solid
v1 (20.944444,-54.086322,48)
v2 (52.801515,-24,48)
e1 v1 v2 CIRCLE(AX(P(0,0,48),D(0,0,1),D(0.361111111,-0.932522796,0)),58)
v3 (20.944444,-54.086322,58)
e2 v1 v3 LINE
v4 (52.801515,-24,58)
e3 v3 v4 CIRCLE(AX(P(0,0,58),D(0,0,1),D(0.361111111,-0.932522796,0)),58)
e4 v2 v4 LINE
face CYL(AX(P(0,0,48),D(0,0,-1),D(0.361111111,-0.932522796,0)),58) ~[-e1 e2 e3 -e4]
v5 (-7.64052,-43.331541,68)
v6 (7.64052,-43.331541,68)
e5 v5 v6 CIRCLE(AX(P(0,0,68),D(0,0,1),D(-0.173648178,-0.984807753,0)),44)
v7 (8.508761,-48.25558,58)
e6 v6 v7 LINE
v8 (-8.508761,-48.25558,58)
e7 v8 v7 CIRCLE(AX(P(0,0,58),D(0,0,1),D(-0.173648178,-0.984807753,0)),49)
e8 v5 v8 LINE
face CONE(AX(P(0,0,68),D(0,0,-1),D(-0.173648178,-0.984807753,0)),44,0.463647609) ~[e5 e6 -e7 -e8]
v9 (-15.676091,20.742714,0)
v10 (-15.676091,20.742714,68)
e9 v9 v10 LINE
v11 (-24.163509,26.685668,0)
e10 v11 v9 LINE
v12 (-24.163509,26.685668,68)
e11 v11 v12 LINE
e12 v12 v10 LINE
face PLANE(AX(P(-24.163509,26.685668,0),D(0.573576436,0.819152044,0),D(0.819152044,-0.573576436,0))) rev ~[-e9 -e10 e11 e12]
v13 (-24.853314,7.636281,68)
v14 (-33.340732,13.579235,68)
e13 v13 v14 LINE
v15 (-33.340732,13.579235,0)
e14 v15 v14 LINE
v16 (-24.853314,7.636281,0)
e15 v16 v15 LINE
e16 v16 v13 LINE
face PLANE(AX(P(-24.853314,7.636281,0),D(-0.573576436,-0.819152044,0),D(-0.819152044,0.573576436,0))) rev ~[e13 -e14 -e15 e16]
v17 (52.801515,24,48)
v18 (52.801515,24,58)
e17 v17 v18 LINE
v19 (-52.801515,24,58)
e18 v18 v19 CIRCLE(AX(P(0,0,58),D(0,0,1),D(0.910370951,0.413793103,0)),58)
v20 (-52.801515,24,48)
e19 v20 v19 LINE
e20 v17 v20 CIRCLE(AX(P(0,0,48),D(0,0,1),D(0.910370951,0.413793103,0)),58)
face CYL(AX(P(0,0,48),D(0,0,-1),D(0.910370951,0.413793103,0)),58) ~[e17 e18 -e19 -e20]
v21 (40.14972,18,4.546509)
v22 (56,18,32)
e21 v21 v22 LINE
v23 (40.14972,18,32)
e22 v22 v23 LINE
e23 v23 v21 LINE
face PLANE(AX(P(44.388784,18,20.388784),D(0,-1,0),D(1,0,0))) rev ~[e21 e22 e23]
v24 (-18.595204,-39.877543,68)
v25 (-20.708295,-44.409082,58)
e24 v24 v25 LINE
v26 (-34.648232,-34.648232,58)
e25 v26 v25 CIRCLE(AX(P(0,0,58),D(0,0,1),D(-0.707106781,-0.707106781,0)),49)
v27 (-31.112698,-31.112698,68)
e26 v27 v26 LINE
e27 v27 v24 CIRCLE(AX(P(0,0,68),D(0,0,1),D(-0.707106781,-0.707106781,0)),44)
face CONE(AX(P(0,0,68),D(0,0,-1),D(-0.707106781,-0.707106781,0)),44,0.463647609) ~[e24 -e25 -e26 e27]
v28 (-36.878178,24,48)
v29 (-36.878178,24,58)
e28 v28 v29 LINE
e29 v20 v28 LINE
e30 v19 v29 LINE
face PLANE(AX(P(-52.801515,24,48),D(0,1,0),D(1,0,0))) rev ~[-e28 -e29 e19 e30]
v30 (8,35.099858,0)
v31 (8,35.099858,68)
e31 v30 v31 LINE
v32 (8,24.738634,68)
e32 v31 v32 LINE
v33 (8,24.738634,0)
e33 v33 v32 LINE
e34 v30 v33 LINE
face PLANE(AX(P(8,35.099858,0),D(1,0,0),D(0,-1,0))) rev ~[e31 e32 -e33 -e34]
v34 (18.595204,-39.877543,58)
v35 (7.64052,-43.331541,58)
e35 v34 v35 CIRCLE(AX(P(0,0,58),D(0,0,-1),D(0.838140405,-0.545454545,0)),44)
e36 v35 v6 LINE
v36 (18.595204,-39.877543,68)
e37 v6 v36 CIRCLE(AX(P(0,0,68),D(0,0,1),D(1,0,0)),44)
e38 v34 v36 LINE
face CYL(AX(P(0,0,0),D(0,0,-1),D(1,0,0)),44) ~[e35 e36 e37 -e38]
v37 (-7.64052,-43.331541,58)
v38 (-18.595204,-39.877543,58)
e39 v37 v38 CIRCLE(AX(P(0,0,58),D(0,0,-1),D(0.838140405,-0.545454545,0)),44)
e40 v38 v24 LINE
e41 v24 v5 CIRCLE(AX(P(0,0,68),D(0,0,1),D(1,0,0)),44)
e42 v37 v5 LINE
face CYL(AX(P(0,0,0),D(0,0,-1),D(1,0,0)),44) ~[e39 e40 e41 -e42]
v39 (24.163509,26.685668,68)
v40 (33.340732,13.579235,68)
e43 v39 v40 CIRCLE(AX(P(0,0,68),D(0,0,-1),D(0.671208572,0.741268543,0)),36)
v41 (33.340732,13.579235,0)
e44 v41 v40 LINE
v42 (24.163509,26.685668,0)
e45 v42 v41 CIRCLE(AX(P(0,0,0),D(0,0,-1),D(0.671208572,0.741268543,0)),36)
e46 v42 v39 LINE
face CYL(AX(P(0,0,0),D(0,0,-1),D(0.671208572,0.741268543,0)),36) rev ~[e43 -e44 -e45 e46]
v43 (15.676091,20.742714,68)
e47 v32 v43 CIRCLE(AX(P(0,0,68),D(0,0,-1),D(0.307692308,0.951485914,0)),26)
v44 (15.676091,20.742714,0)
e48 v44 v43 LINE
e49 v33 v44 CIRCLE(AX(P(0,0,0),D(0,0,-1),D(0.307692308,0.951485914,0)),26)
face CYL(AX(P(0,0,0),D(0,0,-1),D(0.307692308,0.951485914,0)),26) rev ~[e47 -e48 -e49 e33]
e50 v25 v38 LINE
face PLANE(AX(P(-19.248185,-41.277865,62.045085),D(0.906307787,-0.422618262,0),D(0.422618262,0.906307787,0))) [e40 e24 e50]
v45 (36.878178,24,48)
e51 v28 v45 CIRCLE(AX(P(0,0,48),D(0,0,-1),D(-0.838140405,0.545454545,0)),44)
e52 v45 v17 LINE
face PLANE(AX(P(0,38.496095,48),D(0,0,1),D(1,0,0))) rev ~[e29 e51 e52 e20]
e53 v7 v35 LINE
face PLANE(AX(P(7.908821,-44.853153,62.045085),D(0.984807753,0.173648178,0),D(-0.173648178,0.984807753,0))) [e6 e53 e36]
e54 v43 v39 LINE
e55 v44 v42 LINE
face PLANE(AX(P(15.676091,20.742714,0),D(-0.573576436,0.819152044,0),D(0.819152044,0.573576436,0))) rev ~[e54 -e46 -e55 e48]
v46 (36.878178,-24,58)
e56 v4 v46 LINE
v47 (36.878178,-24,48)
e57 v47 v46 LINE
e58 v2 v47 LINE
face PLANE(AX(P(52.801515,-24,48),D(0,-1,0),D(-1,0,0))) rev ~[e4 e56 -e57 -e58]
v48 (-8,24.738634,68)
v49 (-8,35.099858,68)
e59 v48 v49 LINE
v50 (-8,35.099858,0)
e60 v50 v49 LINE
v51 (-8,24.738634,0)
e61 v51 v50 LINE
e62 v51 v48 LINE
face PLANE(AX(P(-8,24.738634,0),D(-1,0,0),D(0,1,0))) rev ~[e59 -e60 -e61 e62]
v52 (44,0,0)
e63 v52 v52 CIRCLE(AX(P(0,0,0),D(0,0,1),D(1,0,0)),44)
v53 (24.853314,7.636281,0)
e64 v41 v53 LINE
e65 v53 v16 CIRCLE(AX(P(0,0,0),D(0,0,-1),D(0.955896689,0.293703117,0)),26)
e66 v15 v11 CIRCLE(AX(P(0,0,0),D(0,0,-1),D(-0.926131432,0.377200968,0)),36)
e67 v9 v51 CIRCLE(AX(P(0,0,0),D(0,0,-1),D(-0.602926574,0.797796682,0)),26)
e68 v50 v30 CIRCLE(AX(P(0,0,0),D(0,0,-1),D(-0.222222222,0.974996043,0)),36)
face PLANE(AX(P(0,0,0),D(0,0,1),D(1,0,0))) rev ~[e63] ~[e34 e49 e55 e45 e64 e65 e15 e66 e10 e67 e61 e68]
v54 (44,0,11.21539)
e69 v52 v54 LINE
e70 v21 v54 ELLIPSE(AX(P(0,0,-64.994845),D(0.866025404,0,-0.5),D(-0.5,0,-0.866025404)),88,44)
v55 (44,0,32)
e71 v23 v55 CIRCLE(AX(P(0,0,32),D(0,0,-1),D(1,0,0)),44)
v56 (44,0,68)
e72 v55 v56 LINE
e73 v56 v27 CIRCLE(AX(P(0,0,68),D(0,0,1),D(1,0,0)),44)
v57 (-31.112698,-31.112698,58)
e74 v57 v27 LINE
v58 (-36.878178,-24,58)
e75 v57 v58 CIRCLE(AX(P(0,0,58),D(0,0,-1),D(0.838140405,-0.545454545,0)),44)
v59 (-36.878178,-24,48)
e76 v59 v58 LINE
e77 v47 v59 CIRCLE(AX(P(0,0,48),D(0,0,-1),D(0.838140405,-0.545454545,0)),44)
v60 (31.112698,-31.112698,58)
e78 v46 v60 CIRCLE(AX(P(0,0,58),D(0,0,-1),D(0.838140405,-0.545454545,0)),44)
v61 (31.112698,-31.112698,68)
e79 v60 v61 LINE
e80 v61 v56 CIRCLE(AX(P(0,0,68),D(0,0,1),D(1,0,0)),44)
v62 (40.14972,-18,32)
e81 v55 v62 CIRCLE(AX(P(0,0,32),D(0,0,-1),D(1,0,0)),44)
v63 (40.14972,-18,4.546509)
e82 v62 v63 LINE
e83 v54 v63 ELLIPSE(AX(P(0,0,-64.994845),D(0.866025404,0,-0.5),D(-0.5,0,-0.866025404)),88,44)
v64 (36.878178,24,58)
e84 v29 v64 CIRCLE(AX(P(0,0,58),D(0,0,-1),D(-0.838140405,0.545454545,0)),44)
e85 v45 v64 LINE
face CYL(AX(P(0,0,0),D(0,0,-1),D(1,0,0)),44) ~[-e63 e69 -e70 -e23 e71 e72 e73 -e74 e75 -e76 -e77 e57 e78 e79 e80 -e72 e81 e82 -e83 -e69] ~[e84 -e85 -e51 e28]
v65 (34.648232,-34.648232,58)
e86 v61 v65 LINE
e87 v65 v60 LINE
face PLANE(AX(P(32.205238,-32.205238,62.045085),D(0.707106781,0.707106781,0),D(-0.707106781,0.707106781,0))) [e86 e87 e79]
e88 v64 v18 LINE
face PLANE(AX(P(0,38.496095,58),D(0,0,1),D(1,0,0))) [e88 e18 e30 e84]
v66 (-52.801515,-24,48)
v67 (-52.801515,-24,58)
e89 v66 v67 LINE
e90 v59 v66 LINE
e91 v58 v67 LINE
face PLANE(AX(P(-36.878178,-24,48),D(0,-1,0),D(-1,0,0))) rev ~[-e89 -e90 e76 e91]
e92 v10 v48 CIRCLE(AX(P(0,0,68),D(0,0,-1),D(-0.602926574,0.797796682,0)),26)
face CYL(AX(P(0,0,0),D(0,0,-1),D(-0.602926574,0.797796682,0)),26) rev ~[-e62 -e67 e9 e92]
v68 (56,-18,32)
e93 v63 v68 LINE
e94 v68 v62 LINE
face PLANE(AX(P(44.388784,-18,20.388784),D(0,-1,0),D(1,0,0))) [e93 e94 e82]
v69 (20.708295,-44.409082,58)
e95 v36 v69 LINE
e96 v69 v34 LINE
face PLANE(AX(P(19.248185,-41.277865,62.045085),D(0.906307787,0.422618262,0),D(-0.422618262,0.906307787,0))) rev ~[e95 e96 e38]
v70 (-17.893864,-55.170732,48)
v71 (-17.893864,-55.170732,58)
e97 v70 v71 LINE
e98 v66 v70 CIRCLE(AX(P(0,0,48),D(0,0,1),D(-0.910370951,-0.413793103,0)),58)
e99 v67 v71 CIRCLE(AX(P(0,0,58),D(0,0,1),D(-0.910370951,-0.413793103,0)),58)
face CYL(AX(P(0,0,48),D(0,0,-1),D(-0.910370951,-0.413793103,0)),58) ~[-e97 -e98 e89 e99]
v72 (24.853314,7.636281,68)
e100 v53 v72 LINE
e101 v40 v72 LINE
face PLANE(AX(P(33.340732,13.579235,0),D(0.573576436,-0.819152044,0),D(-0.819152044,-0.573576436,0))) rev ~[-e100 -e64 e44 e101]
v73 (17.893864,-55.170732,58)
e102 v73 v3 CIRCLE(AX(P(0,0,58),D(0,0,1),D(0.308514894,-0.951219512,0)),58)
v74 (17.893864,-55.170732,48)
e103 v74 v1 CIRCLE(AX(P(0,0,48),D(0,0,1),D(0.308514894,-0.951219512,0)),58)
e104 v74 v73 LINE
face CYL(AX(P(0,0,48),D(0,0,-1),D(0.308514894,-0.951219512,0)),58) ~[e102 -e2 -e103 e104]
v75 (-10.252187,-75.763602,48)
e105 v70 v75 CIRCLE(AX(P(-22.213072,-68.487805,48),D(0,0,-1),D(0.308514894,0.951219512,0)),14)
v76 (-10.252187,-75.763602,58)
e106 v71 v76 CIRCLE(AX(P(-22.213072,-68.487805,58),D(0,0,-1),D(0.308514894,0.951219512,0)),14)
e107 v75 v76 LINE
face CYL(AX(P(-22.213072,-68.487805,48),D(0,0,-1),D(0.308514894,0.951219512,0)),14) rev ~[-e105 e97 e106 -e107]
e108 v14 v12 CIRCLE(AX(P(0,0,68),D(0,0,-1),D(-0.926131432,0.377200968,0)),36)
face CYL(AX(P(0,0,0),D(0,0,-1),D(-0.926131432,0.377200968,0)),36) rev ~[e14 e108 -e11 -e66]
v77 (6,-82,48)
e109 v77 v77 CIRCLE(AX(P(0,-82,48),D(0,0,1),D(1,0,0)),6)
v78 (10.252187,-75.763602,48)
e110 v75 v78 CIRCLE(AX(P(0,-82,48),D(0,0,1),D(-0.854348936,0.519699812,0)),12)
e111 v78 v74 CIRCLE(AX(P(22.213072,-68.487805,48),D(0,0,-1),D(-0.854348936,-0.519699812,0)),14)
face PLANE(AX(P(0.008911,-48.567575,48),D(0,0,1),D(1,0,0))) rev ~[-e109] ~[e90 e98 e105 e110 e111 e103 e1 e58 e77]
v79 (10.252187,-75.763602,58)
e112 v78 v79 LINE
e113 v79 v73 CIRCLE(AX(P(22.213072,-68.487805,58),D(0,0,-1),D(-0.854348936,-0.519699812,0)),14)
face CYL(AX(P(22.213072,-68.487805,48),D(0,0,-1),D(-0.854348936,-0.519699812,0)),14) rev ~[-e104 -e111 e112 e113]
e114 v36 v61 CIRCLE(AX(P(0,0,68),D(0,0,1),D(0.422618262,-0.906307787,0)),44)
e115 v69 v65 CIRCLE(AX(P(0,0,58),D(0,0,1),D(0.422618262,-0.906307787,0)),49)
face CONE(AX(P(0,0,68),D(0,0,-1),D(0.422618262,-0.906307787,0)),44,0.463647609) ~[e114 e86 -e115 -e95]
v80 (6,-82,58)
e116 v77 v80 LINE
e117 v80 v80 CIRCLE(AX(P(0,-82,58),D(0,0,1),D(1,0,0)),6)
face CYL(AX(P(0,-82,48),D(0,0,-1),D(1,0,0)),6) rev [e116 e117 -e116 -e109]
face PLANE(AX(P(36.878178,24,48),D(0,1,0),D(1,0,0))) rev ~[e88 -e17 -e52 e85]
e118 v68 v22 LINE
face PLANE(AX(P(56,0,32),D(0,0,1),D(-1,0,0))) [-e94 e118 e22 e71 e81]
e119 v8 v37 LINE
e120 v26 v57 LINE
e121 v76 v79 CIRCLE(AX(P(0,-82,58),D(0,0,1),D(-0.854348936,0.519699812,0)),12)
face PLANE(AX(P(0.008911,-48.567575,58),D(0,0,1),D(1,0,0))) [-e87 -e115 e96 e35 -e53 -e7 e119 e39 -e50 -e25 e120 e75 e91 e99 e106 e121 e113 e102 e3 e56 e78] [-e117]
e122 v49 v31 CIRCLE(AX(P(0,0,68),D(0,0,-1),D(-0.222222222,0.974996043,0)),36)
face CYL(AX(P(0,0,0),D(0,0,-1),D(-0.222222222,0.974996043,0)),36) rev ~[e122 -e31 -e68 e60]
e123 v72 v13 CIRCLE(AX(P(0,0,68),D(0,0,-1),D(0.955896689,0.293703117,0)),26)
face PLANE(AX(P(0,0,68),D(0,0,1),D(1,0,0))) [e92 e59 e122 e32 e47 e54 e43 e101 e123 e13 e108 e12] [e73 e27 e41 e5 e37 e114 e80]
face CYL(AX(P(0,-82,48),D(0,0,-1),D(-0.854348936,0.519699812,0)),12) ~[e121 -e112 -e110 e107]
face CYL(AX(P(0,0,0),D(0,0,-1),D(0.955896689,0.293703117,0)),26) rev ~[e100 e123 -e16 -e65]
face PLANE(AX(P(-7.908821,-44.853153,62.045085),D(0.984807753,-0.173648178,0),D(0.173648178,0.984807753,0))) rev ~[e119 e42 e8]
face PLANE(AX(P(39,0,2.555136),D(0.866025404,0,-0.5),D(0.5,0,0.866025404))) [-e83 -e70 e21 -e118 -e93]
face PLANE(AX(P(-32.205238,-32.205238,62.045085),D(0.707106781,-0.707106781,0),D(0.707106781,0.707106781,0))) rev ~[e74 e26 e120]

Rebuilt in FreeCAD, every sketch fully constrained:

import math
import FreeCAD as App
import Part
import Sketcher
Q = App.Units.Quantity


def add_polygon(sketch, points):
    """Adds a closed chain of lines whose ends are joined by coincident constraints."""
    first, n = sketch.GeometryCount, len(points)
    for a, b in zip(points, points[1:] + points[:1]):
        sketch.addGeometry(Part.LineSegment(App.Vector(*a, 0), App.Vector(*b, 0)), False)
    for i in range(n):
        sketch.addConstraint(Sketcher.Constraint("Coincident", first + i, 2, first + (i + 1) % n, 1))

doc = App.newDocument("Part")
body = doc.addObject("PartDesign::Body", "Body")

# Sketch on XY plane
sketch1 = body.newObject("Sketcher::SketchObject", "Sketch")
sketch1.AttachmentSupport = (doc.getObject("XY_Plane"), [""])
sketch1.MapMode = "FlatFace"
sketch1.addGeometry([
    Part.Circle(App.Vector(0, 0, 0), App.Vector(0, 0, 1), 44),  # 0
    Part.LineSegment(App.Vector(-25, 8, 0), App.Vector(-33, 14, 0)),  # 1
    Part.ArcOfCircle(Part.Circle(App.Vector(0, 0, 0), App.Vector(0, 0, 1), 36), math.radians(132), math.radians(158)),  # 2
    Part.LineSegment(App.Vector(-24, 27, 0), App.Vector(-16, 21, 0)),  # 3
    Part.ArcOfCircle(Part.Circle(App.Vector(0, 0, 0), App.Vector(0, 0, 1), 26), math.radians(107.92), math.radians(127.08)),  # 4
    Part.LineSegment(App.Vector(-8, 25, 0), App.Vector(-8, 35, 0)),  # 5
    Part.ArcOfCircle(Part.Circle(App.Vector(0, 0, 0), App.Vector(0, 0, 1), 36), math.radians(77), math.radians(103)),  # 6
    Part.LineSegment(App.Vector(8, 35, 0), App.Vector(8, 25, 0)),  # 7
    Part.ArcOfCircle(Part.Circle(App.Vector(0, 0, 0), App.Vector(0, 0, 1), 26), math.radians(52.92), math.radians(72.08)),  # 8
    Part.LineSegment(App.Vector(16, 21, 0), App.Vector(24, 27, 0)),  # 9
    Part.ArcOfCircle(Part.Circle(App.Vector(0, 0, 0), App.Vector(0, 0, 1), 36), math.radians(22), math.radians(48)),  # 10
    Part.LineSegment(App.Vector(33, 14, 0), App.Vector(25, 8, 0)),  # 11
    Part.ArcOfCircle(Part.Circle(App.Vector(0, 0, 0), App.Vector(0, 0, 1), 26), math.radians(163), math.radians(377)),  # 12
], False)
sketch1.addConstraint([
    Sketcher.Constraint("Coincident", 1, 2, 2, 2),
    Sketcher.Constraint("Coincident", 2, 1, 3, 1),
    Sketcher.Constraint("Coincident", 3, 2, 4, 2),
    Sketcher.Constraint("Coincident", 4, 1, 5, 1),
    Sketcher.Constraint("Coincident", 5, 2, 6, 2),
    Sketcher.Constraint("Coincident", 6, 1, 7, 1),
    Sketcher.Constraint("Coincident", 7, 2, 8, 2),
    Sketcher.Constraint("Coincident", 8, 1, 9, 1),
    Sketcher.Constraint("Coincident", 9, 2, 10, 2),
    Sketcher.Constraint("Coincident", 10, 1, 11, 1),
    Sketcher.Constraint("Coincident", 11, 2, 12, 2),
    Sketcher.Constraint("Coincident", 12, 1, 1, 1),
    Sketcher.Constraint("Vertical", 5),
    Sketcher.Constraint("Vertical", 7),
    Sketcher.Constraint("Coincident", 0, 3, -1, 1),
    Sketcher.Constraint("Coincident", 2, 3, -1, 1),
    Sketcher.Constraint("Coincident", 4, 3, -1, 1),
    Sketcher.Constraint("Coincident", 6, 3, -1, 1),
    Sketcher.Constraint("Coincident", 8, 3, -1, 1),
    Sketcher.Constraint("Coincident", 10, 3, -1, 1),
    Sketcher.Constraint("Coincident", 12, 3, -1, 1),
    Sketcher.Constraint("Equal", 2, 6),
    Sketcher.Constraint("Equal", 4, 8),
    Sketcher.Constraint("Equal", 6, 10),
    Sketcher.Constraint("Equal", 8, 12),
    Sketcher.Constraint("Parallel", 1, 3),
    Sketcher.Constraint("Parallel", 9, 11),
    Sketcher.Constraint("Horizontal", 5, 2, 6, 1),
    Sketcher.Constraint("Horizontal", 3, 2, 8, 1),
    Sketcher.Constraint("Horizontal", 2, 1, 9, 2),
    Sketcher.Constraint("Horizontal", 1, 2, 10, 1),
    Sketcher.Constraint("Equal", 1, 3),
    Sketcher.Constraint("Diameter", 0, 88.0),
    Sketcher.Constraint("Radius", 2, 36.0),
    Sketcher.Constraint("Radius", 4, 26.0),
    Sketcher.Constraint("Angle", 1, Q("145 deg")),
    Sketcher.Constraint("DistanceX", 4, 1, -1, 1, 8.0),
    Sketcher.Constraint("DistanceY", 10, 1, 7, 2, 11.159399),
])
pad1 = body.newObject("PartDesign::Pad", "Pad")
pad1.Profile = sketch1
pad1.Length = 68

# Sketch on XY plane
sketch2 = body.newObject("Sketcher::SketchObject", "Sketch001")
sketch2.AttachmentSupport = (doc.getObject("XY_Plane"), [""])
sketch2.MapMode = "FlatFace"
sketch2.AttachmentOffset = App.Placement(App.Vector(0, 0, 48), App.Rotation())
sketch2.addGeometry([
    Part.LineSegment(App.Vector(-36.9, -24, 0), App.Vector(-52.8, -24, 0)),  # 0
    Part.ArcOfCircle(Part.Circle(App.Vector(0, 0, 0), App.Vector(0, 0, 1), 58), math.radians(-156), math.radians(-108)),  # 1
    Part.ArcOfCircle(Part.Circle(App.Vector(-22.2, -68.5, 0), App.Vector(0, 0, 1), 14), math.radians(-31), math.radians(72)),  # 2
    Part.ArcOfCircle(Part.Circle(App.Vector(0, -82, 0), App.Vector(0, 0, 1), 12), math.radians(149), math.radians(391)),  # 3
    Part.ArcOfCircle(Part.Circle(App.Vector(22.2, -68.5, 0), App.Vector(0, 0, 1), 14), math.radians(108), math.radians(211)),  # 4
    Part.ArcOfCircle(Part.Circle(App.Vector(0, 0, 0), App.Vector(0, 0, 1), 58), math.radians(-72.03), math.radians(-68.83)),  # 5
    Part.ArcOfCircle(Part.Circle(App.Vector(0, 0, 0), App.Vector(0, 0, 1), 58), math.radians(-69), math.radians(-24)),  # 6
    Part.LineSegment(App.Vector(52.8, -24, 0), App.Vector(36.9, -24, 0)),  # 7
    Part.ArcOfCircle(Part.Circle(App.Vector(0, 0, 0), App.Vector(0, 0, 1), 44), math.radians(-147), math.radians(-33)),  # 8
    Part.Circle(App.Vector(0, -82, 0), App.Vector(0, 0, 1), 6),  # 9
    Part.LineSegment(App.Vector(-52.8, 24, 0), App.Vector(-36.9, 24, 0)),  # 10
    Part.ArcOfCircle(Part.Circle(App.Vector(0, 0, 0), App.Vector(0, 0, 1), 44), math.radians(33), math.radians(147)),  # 11
    Part.LineSegment(App.Vector(36.9, 24, 0), App.Vector(52.8, 24, 0)),  # 12
    Part.ArcOfCircle(Part.Circle(App.Vector(0, 0, 0), App.Vector(0, 0, 1), 58), math.radians(24), math.radians(156)),  # 13
], False)
sketch2.addConstraint([
    Sketcher.Constraint("Coincident", 0, 2, 1, 1),
    Sketcher.Constraint("Tangent", 1, 2, 2, 2),
    Sketcher.Constraint("Tangent", 2, 1, 3, 1),
    Sketcher.Constraint("Tangent", 3, 2, 4, 2),
    Sketcher.Constraint("Tangent", 4, 1, 5, 1),
    Sketcher.Constraint("Tangent", 5, 2, 6, 1),
    Sketcher.Constraint("Coincident", 6, 2, 7, 1),
    Sketcher.Constraint("Coincident", 7, 2, 8, 2),
    Sketcher.Constraint("Coincident", 8, 1, 0, 1),
    Sketcher.Constraint("Coincident", 10, 2, 11, 2),
    Sketcher.Constraint("Coincident", 11, 1, 12, 1),
    Sketcher.Constraint("Coincident", 12, 2, 13, 1),
    Sketcher.Constraint("Coincident", 13, 2, 10, 1),
    Sketcher.Constraint("Horizontal", 0),
    Sketcher.Constraint("Horizontal", 7),
    Sketcher.Constraint("Horizontal", 10),
    Sketcher.Constraint("Horizontal", 12),
    Sketcher.Constraint("Coincident", 1, 3, -1, 1),
    Sketcher.Constraint("Coincident", 5, 3, -1, 1),
    Sketcher.Constraint("Coincident", 8, 3, -1, 1),
    Sketcher.Constraint("Coincident", 11, 3, -1, 1),
    Sketcher.Constraint("Coincident", 13, 3, -1, 1),
    Sketcher.Constraint("Coincident", 9, 3, 3, 3),
    Sketcher.Constraint("Equal", 2, 4),
    Sketcher.Constraint("Equal", 1, 5),
    Sketcher.Constraint("Equal", 5, 6),
    Sketcher.Constraint("Equal", 8, 11),
    Sketcher.Constraint("Equal", 6, 13),
    Sketcher.Constraint("PointOnObject", 3, 3, -2),
    Sketcher.Constraint("Horizontal", 0, 2, 6, 2),
    Sketcher.Constraint("Horizontal", 10, 2, 11, 1),
    Sketcher.Constraint("Vertical", 8, 1, 10, 2),
    Sketcher.Constraint("Diameter", 9, 12.0),
    Sketcher.Constraint("Radius", 1, 58.0),
    Sketcher.Constraint("Radius", 2, 14.0),
    Sketcher.Constraint("Radius", 3, 12.0),
    Sketcher.Constraint("Radius", 8, 44.0),
    Sketcher.Constraint("DistanceY", 3, 3, -1, 1, 82.0),
    Sketcher.Constraint("DistanceY", 0, 2, -1, 1, 24.0),
    Sketcher.Constraint("DistanceX", 4, 1, 5, 2, 3.050581),
])
pad2 = body.newObject("PartDesign::Pad", "Pad001")
pad2.Profile = sketch2
pad2.Length = 10

# Sketch on XZ plane
sketch3 = body.newObject("Sketcher::SketchObject", "Sketch002")
sketch3.AttachmentSupport = (doc.getObject("XZ_Plane"), [""])
sketch3.MapMode = "FlatFace"
add_polygon(sketch3, [(56, 32), (39, 32), (39, 3)])  # lines 0-2
sketch3.addConstraint([
    Sketcher.Constraint("Horizontal", 0),
    Sketcher.Constraint("Vertical", 1),
    Sketcher.Constraint("DistanceX", 0, 2, 0, 1, 17.0),
    Sketcher.Constraint("Angle", 2, Q("60 deg")),
    Sketcher.Constraint("DistanceX", -1, 1, 0, 2, 39.0),
    Sketcher.Constraint("DistanceY", -1, 1, 0, 2, 32.0),
])
pad3 = body.newObject("PartDesign::Pad", "Pad002")
pad3.Profile = sketch3
pad3.Length = 36
pad3.Midplane = True

# Sketch on an angled plane
sketch4 = body.newObject("Sketcher::SketchObject", "Sketch003")
sketch4.Placement = App.Placement(App.Vector(0, 0, 0), App.Rotation(App.Vector(0.173648178, 0.984807753, 0), App.Vector(0, 0, 1), App.Vector(0.984807753, -0.173648178, 0), "ZXY"))
add_polygon(sketch4, [(-44, 58), (-44, 68), (-49, 58)])  # lines 0-2
sketch4.addConstraint([
    Sketcher.Constraint("Vertical", 0),
    Sketcher.Constraint("Horizontal", 2),
    Sketcher.Constraint("DistanceX", 2, 1, 2, 2, 5.0),
    Sketcher.Constraint("DistanceY", 0, 1, 0, 2, 10.0),
    Sketcher.Constraint("DistanceX", 0, 2, -1, 1, 44.0),
    Sketcher.Constraint("DistanceY", -1, 1, 0, 2, 68.0),
])
revolution = body.newObject("PartDesign::Revolution", "Revolution")
revolution.Profile = sketch4
revolution.ReferenceAxis = (sketch4, ["V_Axis"])
revolution.Angle = 20

# Sketch on an angled plane
sketch5 = body.newObject("Sketcher::SketchObject", "Sketch004")
sketch5.Placement = App.Placement(App.Vector(0, 0, 0), App.Rotation(App.Vector(-0.422618262, 0.906307787, 0), App.Vector(0, 0, 1), App.Vector(0.906307787, 0.422618262, 0), "ZXY"))
add_polygon(sketch5, [(-44, 58), (-44, 68), (-49, 58)])  # lines 0-2
sketch5.addConstraint([
    Sketcher.Constraint("Vertical", 0),
    Sketcher.Constraint("Horizontal", 2),
    Sketcher.Constraint("DistanceX", 2, 1, 2, 2, 5.0),
    Sketcher.Constraint("DistanceY", 0, 1, 0, 2, 10.0),
    Sketcher.Constraint("DistanceX", 0, 2, -1, 1, 44.0),
    Sketcher.Constraint("DistanceY", -1, 1, 0, 2, 68.0),
])
revolution2 = body.newObject("PartDesign::Revolution", "Revolution001")
revolution2.Profile = sketch5
revolution2.ReferenceAxis = (sketch5, ["V_Axis"])
revolution2.Angle = 20

# Sketch on an angled plane
sketch6 = body.newObject("Sketcher::SketchObject", "Sketch005")
sketch6.Placement = App.Placement(App.Vector(0, 0, 0), App.Rotation(App.Vector(0.707106781, 0.707106781, 0), App.Vector(0, 0, 0.999999999), App.Vector(0.707106781, -0.707106781, 0), "ZXY"))
add_polygon(sketch6, [(-49, 58), (-44, 58), (-44, 68)])  # lines 0-2
sketch6.addConstraint([
    Sketcher.Constraint("Horizontal", 0),
    Sketcher.Constraint("Vertical", 1),
    Sketcher.Constraint("DistanceX", 0, 1, 0, 2, 5.0),
    Sketcher.Constraint("DistanceY", 1, 1, 1, 2, 10.0),
    Sketcher.Constraint("DistanceX", 0, 2, -1, 1, 44.0),
    Sketcher.Constraint("DistanceY", -1, 1, 0, 2, 58.0),
])
revolution3 = body.newObject("PartDesign::Revolution", "Revolution002")
revolution3.Profile = sketch6
revolution3.ReferenceAxis = (sketch6, ["V_Axis"])
revolution3.Angle = 20

doc.recompute()
